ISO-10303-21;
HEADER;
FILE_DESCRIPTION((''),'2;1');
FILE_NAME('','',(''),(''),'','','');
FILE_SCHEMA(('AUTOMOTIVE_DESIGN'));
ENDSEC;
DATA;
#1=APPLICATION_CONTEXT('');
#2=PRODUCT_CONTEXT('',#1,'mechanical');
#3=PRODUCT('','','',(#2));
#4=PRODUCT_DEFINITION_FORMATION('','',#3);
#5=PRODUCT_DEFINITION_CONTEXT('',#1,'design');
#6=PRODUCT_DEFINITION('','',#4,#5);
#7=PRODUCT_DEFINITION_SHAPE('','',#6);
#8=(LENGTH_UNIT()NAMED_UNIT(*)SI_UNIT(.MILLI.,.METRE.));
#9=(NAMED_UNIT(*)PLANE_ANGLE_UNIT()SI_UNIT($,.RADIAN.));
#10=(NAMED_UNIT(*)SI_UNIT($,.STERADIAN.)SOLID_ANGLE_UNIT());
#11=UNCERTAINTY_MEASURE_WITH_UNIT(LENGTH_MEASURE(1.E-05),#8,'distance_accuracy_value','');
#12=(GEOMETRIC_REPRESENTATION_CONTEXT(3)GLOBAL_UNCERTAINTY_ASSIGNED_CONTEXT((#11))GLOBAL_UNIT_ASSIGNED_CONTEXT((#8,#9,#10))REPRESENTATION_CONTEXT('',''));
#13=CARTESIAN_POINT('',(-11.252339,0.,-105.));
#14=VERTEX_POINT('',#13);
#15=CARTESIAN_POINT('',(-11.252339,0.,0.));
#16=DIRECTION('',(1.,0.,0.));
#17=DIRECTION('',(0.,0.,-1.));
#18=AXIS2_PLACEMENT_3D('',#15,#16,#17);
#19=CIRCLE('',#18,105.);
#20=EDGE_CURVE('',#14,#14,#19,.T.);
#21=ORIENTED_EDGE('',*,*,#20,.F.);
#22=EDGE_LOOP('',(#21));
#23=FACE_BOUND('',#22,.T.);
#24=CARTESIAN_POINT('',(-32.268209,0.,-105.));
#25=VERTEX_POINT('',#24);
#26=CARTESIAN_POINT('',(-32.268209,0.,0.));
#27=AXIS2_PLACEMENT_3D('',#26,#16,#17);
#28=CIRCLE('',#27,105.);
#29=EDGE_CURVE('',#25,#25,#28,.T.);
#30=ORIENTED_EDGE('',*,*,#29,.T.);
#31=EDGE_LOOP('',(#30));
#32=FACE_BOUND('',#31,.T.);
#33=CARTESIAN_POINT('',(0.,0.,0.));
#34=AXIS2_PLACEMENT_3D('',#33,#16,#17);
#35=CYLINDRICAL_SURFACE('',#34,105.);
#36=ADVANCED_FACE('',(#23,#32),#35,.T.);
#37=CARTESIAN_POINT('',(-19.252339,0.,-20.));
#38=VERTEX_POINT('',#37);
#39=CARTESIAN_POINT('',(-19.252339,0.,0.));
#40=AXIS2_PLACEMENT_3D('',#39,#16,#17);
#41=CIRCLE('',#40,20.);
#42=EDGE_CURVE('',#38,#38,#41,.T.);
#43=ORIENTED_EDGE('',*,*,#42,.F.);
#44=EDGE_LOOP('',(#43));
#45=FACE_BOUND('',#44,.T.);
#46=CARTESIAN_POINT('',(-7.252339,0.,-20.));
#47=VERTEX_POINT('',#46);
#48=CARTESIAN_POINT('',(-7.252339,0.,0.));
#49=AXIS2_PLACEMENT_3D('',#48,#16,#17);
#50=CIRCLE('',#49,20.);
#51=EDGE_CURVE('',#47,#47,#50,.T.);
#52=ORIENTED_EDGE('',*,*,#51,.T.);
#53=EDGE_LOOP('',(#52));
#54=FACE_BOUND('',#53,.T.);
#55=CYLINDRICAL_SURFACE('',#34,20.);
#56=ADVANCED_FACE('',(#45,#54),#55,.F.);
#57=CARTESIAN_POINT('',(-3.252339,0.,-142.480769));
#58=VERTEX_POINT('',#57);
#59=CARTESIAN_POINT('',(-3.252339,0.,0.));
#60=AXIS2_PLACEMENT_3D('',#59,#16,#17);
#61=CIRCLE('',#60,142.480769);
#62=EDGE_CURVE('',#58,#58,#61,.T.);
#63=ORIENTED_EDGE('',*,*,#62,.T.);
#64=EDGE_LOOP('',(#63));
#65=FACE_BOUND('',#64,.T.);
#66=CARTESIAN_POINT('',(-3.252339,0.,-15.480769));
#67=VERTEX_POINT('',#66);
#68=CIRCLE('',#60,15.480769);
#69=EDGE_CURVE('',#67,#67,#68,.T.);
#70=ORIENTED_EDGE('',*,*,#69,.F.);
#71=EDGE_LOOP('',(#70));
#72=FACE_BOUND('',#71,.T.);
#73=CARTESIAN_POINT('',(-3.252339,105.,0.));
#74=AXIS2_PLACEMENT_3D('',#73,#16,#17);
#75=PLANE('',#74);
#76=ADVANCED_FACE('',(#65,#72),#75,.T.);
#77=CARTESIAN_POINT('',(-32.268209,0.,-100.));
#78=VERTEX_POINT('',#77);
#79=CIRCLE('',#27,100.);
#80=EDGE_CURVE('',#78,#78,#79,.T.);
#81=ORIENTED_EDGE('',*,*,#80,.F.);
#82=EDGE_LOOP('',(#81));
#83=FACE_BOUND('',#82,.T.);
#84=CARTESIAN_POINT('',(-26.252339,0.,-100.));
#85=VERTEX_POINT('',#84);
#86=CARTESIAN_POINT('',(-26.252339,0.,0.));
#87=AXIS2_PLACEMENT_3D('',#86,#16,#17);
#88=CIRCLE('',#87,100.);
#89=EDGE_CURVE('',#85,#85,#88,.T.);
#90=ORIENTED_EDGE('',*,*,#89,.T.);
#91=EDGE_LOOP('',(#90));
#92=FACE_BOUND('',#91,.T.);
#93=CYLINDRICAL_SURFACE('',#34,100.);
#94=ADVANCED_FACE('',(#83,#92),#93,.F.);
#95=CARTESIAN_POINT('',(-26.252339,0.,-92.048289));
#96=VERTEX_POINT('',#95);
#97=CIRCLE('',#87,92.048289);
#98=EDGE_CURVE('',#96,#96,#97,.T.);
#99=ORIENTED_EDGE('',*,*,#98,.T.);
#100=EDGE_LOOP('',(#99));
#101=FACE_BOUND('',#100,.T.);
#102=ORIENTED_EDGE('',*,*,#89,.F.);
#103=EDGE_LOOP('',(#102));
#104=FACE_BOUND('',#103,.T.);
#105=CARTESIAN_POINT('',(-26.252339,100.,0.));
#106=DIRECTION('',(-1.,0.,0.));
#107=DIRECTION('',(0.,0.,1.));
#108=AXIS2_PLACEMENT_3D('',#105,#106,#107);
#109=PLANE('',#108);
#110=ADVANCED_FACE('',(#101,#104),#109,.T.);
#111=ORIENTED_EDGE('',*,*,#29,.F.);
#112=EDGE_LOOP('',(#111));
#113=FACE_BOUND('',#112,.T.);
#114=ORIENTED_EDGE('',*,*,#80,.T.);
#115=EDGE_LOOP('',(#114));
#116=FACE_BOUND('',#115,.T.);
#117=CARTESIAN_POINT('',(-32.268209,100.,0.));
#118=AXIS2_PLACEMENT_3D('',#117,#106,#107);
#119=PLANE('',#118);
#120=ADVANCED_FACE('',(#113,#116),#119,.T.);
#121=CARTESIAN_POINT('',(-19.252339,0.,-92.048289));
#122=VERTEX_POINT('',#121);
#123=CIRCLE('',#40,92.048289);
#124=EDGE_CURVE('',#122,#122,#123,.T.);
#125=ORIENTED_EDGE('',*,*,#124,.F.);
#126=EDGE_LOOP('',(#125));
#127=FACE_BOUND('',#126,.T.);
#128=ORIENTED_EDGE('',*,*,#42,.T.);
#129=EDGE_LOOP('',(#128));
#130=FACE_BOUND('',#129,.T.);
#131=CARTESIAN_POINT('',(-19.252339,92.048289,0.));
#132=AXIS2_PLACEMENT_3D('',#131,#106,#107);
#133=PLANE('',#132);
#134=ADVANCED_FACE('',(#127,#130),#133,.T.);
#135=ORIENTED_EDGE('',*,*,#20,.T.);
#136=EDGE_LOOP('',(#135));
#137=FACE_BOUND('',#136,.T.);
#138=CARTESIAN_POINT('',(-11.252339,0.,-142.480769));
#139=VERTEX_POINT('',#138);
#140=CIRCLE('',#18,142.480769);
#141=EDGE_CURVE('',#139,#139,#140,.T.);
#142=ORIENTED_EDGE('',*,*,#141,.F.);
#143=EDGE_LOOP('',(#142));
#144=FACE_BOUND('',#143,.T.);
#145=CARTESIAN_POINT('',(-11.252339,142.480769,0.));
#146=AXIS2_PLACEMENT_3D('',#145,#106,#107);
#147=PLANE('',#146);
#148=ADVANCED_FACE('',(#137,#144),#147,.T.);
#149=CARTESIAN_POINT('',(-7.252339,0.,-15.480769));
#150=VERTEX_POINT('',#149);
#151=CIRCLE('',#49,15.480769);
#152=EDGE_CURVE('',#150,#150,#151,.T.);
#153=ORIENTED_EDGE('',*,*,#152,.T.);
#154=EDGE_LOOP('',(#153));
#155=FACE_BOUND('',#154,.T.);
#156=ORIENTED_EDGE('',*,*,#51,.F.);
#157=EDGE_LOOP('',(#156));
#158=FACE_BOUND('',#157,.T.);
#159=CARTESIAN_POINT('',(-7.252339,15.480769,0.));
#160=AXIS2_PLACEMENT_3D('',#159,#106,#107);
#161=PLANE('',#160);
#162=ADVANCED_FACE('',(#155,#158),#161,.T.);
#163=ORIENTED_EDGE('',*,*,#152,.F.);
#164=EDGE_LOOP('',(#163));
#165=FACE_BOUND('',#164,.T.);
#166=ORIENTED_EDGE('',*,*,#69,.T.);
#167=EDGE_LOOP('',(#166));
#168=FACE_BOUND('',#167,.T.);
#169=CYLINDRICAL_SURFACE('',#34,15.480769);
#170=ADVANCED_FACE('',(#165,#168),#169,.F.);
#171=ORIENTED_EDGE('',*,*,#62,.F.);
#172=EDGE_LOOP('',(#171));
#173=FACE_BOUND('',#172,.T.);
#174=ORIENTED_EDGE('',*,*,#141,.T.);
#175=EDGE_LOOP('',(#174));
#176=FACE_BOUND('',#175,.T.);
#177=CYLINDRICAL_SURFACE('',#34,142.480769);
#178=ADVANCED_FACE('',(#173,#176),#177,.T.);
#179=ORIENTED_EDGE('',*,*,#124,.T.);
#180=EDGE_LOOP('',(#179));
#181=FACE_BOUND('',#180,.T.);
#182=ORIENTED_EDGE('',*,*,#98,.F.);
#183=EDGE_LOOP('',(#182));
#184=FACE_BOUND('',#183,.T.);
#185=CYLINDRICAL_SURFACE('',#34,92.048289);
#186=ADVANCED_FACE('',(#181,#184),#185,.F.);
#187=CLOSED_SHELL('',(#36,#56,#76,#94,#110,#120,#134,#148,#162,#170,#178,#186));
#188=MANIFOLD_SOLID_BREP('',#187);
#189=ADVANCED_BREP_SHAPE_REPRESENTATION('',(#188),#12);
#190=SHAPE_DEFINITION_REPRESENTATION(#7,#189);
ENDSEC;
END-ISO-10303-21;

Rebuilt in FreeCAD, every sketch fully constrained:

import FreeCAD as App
import Part
import Sketcher


def add_polygon(sketch, points):
    """Adds a closed chain of lines whose ends are joined by coincident constraints."""
    first, n = sketch.GeometryCount, len(points)
    for a, b in zip(points, points[1:] + points[:1]):
        sketch.addGeometry(Part.LineSegment(App.Vector(*a, 0), App.Vector(*b, 0)), False)
    for i in range(n):
        sketch.addConstraint(Sketcher.Constraint("Coincident", first + i, 2, first + (i + 1) % n, 1))

doc = App.newDocument("Part")
body = doc.addObject("PartDesign::Body", "Body")

# Sketch on XY plane
sketch1 = body.newObject("Sketcher::SketchObject", "Sketch")
sketch1.AttachmentSupport = (doc.getObject("XY_Plane"), [""])
sketch1.MapMode = "FlatFace"
add_polygon(sketch1, [(-7.252338, 15.480769), (-3.252339, 15.480769), (-3.252339, 142.480769), (-11.252339, 142.480769), (-11.252339, 105), (-32.268209, 105), (-32.268209, 100), (-26.252339, 100), (-26.252339, 92.048289), (-19.252339, 92.048289), (-19.252339, 20), (-7.252338, 20)])  # lines 0-11
sketch1.addConstraint(Sketcher.Constraint("Horizontal", 0))
sketch1.addConstraint(Sketcher.Constraint("Vertical", 1))
sketch1.addConstraint(Sketcher.Constraint("Horizontal", 2))
sketch1.addConstraint(Sketcher.Constraint("Vertical", 3))
sketch1.addConstraint(Sketcher.Constraint("Horizontal", 4))
sketch1.addConstraint(Sketcher.Constraint("Vertical", 5))
sketch1.addConstraint(Sketcher.Constraint("Horizontal", 6))
sketch1.addConstraint(Sketcher.Constraint("Vertical", 7))
sketch1.addConstraint(Sketcher.Constraint("Horizontal", 8))
sketch1.addConstraint(Sketcher.Constraint("Vertical", 9))
sketch1.addConstraint(Sketcher.Constraint("Horizontal", 10))
sketch1.addConstraint(Sketcher.Constraint("Vertical", 11))
sketch1.addConstraint(Sketcher.Constraint("DistanceX", 0, 1, 0, 2, 4.0))
sketch1.addConstraint(Sketcher.Constraint("DistanceX", 2, 2, 2, 1, 8.0))
sketch1.addConstraint(Sketcher.Constraint("DistanceX", 8, 1, 8, 2, 7.0))
sketch1.addConstraint(Sketcher.Constraint("DistanceX", 10, 1, 10, 2, 12.0))
sketch1.addConstraint(Sketcher.Constraint("DistanceY", 1, 1, 1, 2, 127.0))
sketch1.addConstraint(Sketcher.Constraint("DistanceY", 5, 2, 5, 1, 5.0))
sketch1.addConstraint(Sketcher.Constraint("DistanceY", -1, 1, 3, 2, 105.0))
sketch1.addConstraint(Sketcher.Constraint("DistanceY", -1, 1, 9, 2, 20.0))
sketch1.addConstraint(Sketcher.Constraint("DistanceX", 4, 2, 4, 1, 21.015871))
sketch1.addConstraint(Sketcher.Constraint("DistanceY", 3, 2, 3, 1, 37.480769))
sketch1.addConstraint(Sketcher.Constraint("DistanceY", 7, 2, 7, 1, 7.951711))
sketch1.addConstraint(Sketcher.Constraint("DistanceX", 0, 2, -1, 1, 3.252339))
revolution = body.newObject("PartDesign::Revolution", "Revolution")
revolution.Profile = sketch1
revolution.ReferenceAxis = (sketch1, ["H_Axis"])
revolution.Angle = 360

doc.recompute()
